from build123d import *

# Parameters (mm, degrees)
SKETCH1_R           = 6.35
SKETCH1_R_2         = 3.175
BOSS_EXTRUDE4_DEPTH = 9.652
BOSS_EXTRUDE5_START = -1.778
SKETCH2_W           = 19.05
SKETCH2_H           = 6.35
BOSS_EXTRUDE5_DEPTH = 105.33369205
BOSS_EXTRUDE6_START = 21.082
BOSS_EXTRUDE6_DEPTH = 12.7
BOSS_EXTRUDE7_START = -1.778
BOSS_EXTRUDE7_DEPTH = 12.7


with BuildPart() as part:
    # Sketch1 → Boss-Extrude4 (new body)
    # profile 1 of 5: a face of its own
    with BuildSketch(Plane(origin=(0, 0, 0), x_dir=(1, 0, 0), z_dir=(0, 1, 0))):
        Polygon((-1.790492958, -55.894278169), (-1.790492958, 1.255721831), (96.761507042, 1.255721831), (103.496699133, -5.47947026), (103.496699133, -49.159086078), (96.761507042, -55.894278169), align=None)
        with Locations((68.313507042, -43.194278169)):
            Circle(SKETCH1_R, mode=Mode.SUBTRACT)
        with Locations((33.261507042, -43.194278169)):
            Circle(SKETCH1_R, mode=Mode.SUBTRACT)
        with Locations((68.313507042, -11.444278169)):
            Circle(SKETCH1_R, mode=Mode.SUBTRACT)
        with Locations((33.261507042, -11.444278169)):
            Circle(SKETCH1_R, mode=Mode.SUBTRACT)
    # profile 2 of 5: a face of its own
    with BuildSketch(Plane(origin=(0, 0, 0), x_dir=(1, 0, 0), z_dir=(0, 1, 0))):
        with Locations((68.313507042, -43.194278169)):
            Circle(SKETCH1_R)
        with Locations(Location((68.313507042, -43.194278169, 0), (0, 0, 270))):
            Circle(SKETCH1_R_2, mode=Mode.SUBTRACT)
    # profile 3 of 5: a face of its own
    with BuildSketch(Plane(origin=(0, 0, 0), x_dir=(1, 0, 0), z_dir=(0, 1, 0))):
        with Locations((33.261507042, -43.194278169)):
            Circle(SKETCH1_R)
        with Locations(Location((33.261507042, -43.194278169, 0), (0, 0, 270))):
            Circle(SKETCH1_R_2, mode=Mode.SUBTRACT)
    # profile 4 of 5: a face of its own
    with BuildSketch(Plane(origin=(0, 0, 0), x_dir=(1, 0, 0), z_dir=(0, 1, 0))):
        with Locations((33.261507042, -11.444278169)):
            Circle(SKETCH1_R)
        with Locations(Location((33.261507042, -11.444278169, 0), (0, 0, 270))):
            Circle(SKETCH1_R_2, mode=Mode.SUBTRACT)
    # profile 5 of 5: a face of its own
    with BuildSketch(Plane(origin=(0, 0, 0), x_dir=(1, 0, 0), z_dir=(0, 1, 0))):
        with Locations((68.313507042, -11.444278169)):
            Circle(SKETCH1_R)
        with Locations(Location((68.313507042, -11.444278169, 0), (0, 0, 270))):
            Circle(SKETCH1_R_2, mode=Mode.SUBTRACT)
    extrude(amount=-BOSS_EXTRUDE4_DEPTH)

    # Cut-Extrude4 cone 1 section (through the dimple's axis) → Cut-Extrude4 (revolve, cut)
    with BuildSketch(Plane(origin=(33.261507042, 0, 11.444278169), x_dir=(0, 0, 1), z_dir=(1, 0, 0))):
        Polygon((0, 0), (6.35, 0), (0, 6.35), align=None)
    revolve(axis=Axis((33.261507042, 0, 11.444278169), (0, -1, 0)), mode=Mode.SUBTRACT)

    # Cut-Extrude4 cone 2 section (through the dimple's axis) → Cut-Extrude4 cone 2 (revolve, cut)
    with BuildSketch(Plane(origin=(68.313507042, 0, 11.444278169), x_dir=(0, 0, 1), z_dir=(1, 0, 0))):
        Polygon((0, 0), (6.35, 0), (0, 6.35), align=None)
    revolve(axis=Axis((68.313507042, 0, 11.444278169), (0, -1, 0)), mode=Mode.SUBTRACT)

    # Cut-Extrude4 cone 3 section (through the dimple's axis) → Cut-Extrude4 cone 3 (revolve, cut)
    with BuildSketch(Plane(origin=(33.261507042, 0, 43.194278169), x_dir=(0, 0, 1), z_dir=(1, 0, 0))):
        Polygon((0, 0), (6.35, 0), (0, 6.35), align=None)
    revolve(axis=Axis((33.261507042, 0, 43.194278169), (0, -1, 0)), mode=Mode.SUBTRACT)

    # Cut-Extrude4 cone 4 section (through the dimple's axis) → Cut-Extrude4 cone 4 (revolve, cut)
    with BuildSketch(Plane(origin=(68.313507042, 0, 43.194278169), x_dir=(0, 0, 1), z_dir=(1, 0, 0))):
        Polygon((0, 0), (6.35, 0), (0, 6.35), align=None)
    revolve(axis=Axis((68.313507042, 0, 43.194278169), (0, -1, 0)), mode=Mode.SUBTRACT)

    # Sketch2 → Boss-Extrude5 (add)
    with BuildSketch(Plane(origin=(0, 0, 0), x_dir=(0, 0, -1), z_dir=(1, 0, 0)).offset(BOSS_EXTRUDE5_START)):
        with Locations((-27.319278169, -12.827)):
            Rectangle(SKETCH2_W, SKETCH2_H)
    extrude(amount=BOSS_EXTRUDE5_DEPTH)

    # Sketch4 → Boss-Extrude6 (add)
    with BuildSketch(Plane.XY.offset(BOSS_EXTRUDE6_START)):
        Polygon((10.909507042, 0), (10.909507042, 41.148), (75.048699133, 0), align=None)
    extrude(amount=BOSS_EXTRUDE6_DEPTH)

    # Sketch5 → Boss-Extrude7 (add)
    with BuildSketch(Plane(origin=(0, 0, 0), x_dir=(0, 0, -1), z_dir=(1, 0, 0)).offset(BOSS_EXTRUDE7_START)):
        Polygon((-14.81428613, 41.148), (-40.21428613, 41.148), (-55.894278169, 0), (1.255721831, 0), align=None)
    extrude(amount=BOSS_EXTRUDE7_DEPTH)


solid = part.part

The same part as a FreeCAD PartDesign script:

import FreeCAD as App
import Part
import Sketcher

V = App.Vector
Q = App.Units.Quantity


def add_polygon(sketch, points):
    """Adds a closed chain of lines whose ends are joined by coincident constraints."""
    first, n = sketch.GeometryCount, len(points)
    for a, b in zip(points, points[1:] + points[:1]):
        sketch.addGeometry(Part.LineSegment(App.Vector(*a, 0), App.Vector(*b, 0)), False)
    for i in range(n):
        sketch.addConstraint(Sketcher.Constraint("Coincident", first + i, 2, first + (i + 1) % n, 1))

doc = App.newDocument("Part")
body = doc.addObject("PartDesign::Body", "Body")

# Sketch on XZ plane
sketch1 = doc.addObject("Sketcher::SketchObject", "Sketch")
body.addObject(sketch1)
sketch1.AttachmentSupport = (doc.XZ_Plane, [""])
sketch1.MapMode = "FlatFace"
add_polygon(sketch1, [(-1.8, -1.3), (-1.8, 55.9), (96.8, 55.9), (103.5, 49.2), (103.5, 5.5), (96.8, -1.3)])  # lines 0-5
sketch1.addGeometry(Part.Circle(V(68.3, 43.2, 0), V(0, 0, 1), 3.2), False)  # 6
sketch1.addGeometry(Part.Circle(V(33.3, 43.2, 0), V(0, 0, 1), 3.2), False)  # 7
sketch1.addGeometry(Part.Circle(V(68.3, 11.4, 0), V(0, 0, 1), 3.2), False)  # 8
sketch1.addGeometry(Part.Circle(V(33.3, 11.4, 0), V(0, 0, 1), 3.2), False)  # 9
sketch1.addConstraint(Sketcher.Constraint("Vertical", 0))
sketch1.addConstraint(Sketcher.Constraint("Horizontal", 1))
sketch1.addConstraint(Sketcher.Constraint("Vertical", 3))
sketch1.addConstraint(Sketcher.Constraint("Horizontal", 5))
sketch1.addConstraint(Sketcher.Constraint("Equal", 6, 7))
sketch1.addConstraint(Sketcher.Constraint("Equal", 7, 8))
sketch1.addConstraint(Sketcher.Constraint("Equal", 8, 9))
sketch1.addConstraint(Sketcher.Constraint("Perpendicular", 2, 4))
sketch1.addConstraint(Sketcher.Constraint("Horizontal", 6, 3, 7, 3))
sketch1.addConstraint(Sketcher.Constraint("Horizontal", 8, 3, 9, 3))
sketch1.addConstraint(Sketcher.Constraint("Vertical", 6, 3, 8, 3))
sketch1.addConstraint(Sketcher.Constraint("Vertical", 7, 3, 9, 3))
sketch1.addConstraint(Sketcher.Constraint("Vertical", 1, 2, 4, 2))
sketch1.addConstraint(Sketcher.Constraint("Equal", 2, 4))
sketch1.addConstraint(Sketcher.Constraint("Diameter", 6, Q("0.25 in")))
sketch1.addConstraint(Sketcher.Constraint("DistanceX", 1, 1, 1, 2, Q("3.88 in")))
sketch1.addConstraint(Sketcher.Constraint("DistanceY", 0, 1, 0, 2, Q("2.25 in")))
sketch1.addConstraint(Sketcher.Constraint("DistanceY", 7, 3, 0, 2, Q("0.5 in")))
sketch1.addConstraint(Sketcher.Constraint("DistanceX", 7, 3, 1, 2, Q("2.5 in")))
sketch1.addConstraint(Sketcher.Constraint("DistanceY", 4, 2, 8, 3, Q("0.5 in")))
sketch1.addConstraint(Sketcher.Constraint("DistanceX", 7, 3, 6, 3, Q("1.38 in")))
sketch1.addConstraint(Sketcher.Constraint("Distance", 2, Q("0.375 in")))
sketch1.addConstraint(Sketcher.Constraint("DistanceX", -1, 1, 2, 2, Q("103.496699 mm")))
sketch1.addConstraint(Sketcher.Constraint("DistanceY", -1, 1, 6, 3, Q("43.194278 mm")))
pad1 = doc.addObject("PartDesign::Pad", "Pad")
body.addObject(pad1)
pad1.Profile = sketch1
pad1.Length = Q("0.38 in")

# Sketch on YZ plane
sketch2 = doc.addObject("Sketcher::SketchObject", "Sketch001")
body.addObject(sketch2)
sketch2.AttachmentSupport = (doc.YZ_Plane, [""])
sketch2.MapMode = "FlatFace"
sketch2.AttachmentOffset = App.Placement(V(0, 0, 33.261507), App.Rotation())
add_polygon(sketch2, [(0, 11), (0, 18), (-6, 11)])  # lines 0-2
sketch2.addGeometry(Part.LineSegment(V(0, 11, 0), V(-6, 11, 0)), True)  # axis
sketch2.addConstraint(Sketcher.Constraint("Vertical", 0))
sketch2.addConstraint(Sketcher.Constraint("Horizontal", 2))
sketch2.addConstraint(Sketcher.Constraint("Horizontal", 3))
sketch2.addConstraint(Sketcher.Constraint("Coincident", 3, 1, 2, 2))
sketch2.addConstraint(Sketcher.Constraint("PointOnObject", 0, 2, -2))
sketch2.addConstraint(Sketcher.Constraint("Equal", 2, 3))
sketch2.addConstraint(Sketcher.Constraint("Equal", 3, 0))
sketch2.addConstraint(Sketcher.Constraint("DistanceX", 2, 1, 2, 2, Q("0.25 in")))
sketch2.addConstraint(Sketcher.Constraint("DistanceY", -1, 1, 0, 2, Q("17.794278 mm")))
groove = doc.addObject("PartDesign::Groove", "Groove")
body.addObject(groove)
groove.Profile = sketch2
groove.ReferenceAxis = (sketch2, ["Axis0"])
groove.Angle = 360

# Sketch on YZ plane
sketch3 = doc.addObject("Sketcher::SketchObject", "Sketch002")
body.addObject(sketch3)
sketch3.AttachmentSupport = (doc.YZ_Plane, [""])
sketch3.MapMode = "FlatFace"
sketch3.AttachmentOffset = App.Placement(V(0, 0, 68.313507), App.Rotation())
add_polygon(sketch3, [(0, 11), (0, 18), (-6, 11)])  # lines 0-2
sketch3.addGeometry(Part.LineSegment(V(0, 11, 0), V(-6, 11, 0)), True)  # axis
sketch3.addConstraint(Sketcher.Constraint("Vertical", 0))
sketch3.addConstraint(Sketcher.Constraint("Horizontal", 2))
sketch3.addConstraint(Sketcher.Constraint("Horizontal", 3))
sketch3.addConstraint(Sketcher.Constraint("Coincident", 3, 1, 2, 2))
sketch3.addConstraint(Sketcher.Constraint("PointOnObject", 0, 2, -2))
sketch3.addConstraint(Sketcher.Constraint("Equal", 2, 3))
sketch3.addConstraint(Sketcher.Constraint("Equal", 3, 0))
sketch3.addConstraint(Sketcher.Constraint("DistanceX", 2, 1, 2, 2, Q("0.25 in")))
sketch3.addConstraint(Sketcher.Constraint("DistanceY", -1, 1, 0, 2, Q("17.794278 mm")))
groove2 = doc.addObject("PartDesign::Groove", "Groove001")
body.addObject(groove2)
groove2.Profile = sketch3
groove2.ReferenceAxis = (sketch3, ["Axis0"])
groove2.Angle = 360

# Sketch on YZ plane
sketch4 = doc.addObject("Sketcher::SketchObject", "Sketch003")
body.addObject(sketch4)
sketch4.AttachmentSupport = (doc.YZ_Plane, [""])
sketch4.MapMode = "FlatFace"
sketch4.AttachmentOffset = App.Placement(V(0, 0, 33.261507), App.Rotation())
add_polygon(sketch4, [(0, 43), (0, 50), (-6, 43)])  # lines 0-2
sketch4.addGeometry(Part.LineSegment(V(0, 43, 0), V(-6, 43, 0)), True)  # axis
sketch4.addConstraint(Sketcher.Constraint("Vertical", 0))
sketch4.addConstraint(Sketcher.Constraint("Horizontal", 2))
sketch4.addConstraint(Sketcher.Constraint("Horizontal", 3))
sketch4.addConstraint(Sketcher.Constraint("Coincident", 3, 1, 2, 2))
sketch4.addConstraint(Sketcher.Constraint("PointOnObject", 0, 2, -2))
sketch4.addConstraint(Sketcher.Constraint("Equal", 2, 3))
sketch4.addConstraint(Sketcher.Constraint("Equal", 3, 0))
sketch4.addConstraint(Sketcher.Constraint("DistanceX", 2, 1, 2, 2, Q("0.25 in")))
sketch4.addConstraint(Sketcher.Constraint("DistanceY", -1, 1, 0, 2, Q("49.544278 mm")))
groove3 = doc.addObject("PartDesign::Groove", "Groove002")
body.addObject(groove3)
groove3.Profile = sketch4
groove3.ReferenceAxis = (sketch4, ["Axis0"])
groove3.Angle = 360

# Sketch on YZ plane
sketch5 = doc.addObject("Sketcher::SketchObject", "Sketch004")
body.addObject(sketch5)
sketch5.AttachmentSupport = (doc.YZ_Plane, [""])
sketch5.MapMode = "FlatFace"
sketch5.AttachmentOffset = App.Placement(V(0, 0, 68.313507), App.Rotation())
add_polygon(sketch5, [(0, 43), (0, 50), (-6, 43)])  # lines 0-2
sketch5.addGeometry(Part.LineSegment(V(0, 43, 0), V(-6, 43, 0)), True)  # axis
sketch5.addConstraint(Sketcher.Constraint("Vertical", 0))
sketch5.addConstraint(Sketcher.Constraint("Horizontal", 2))
sketch5.addConstraint(Sketcher.Constraint("Horizontal", 3))
sketch5.addConstraint(Sketcher.Constraint("Coincident", 3, 1, 2, 2))
sketch5.addConstraint(Sketcher.Constraint("PointOnObject", 0, 2, -2))
sketch5.addConstraint(Sketcher.Constraint("Equal", 2, 3))
sketch5.addConstraint(Sketcher.Constraint("Equal", 3, 0))
sketch5.addConstraint(Sketcher.Constraint("DistanceX", 2, 1, 2, 2, Q("0.25 in")))
sketch5.addConstraint(Sketcher.Constraint("DistanceY", -1, 1, 0, 2, Q("49.544278 mm")))
groove4 = doc.addObject("PartDesign::Groove", "Groove003")
body.addObject(groove4)
groove4.Profile = sketch5
groove4.ReferenceAxis = (sketch5, ["Axis0"])
groove4.Angle = 360

# Sketch on YZ plane
sketch6 = doc.addObject("Sketcher::SketchObject", "Sketch005")
body.addObject(sketch6)
sketch6.AttachmentSupport = (doc.YZ_Plane, [""])
sketch6.MapMode = "FlatFace"
sketch6.AttachmentOffset = App.Placement(V(0, 0, -0.07 * 25.4), App.Rotation())
add_polygon(sketch6, [(-10, 37), (-16, 37), (-16, 18), (-10, 18)])  # lines 0-3
sketch6.addConstraint(Sketcher.Constraint("Horizontal", 0))
sketch6.addConstraint(Sketcher.Constraint("Vertical", 1))
sketch6.addConstraint(Sketcher.Constraint("Horizontal", 2))
sketch6.addConstraint(Sketcher.Constraint("Vertical", 3))
sketch6.addConstraint(Sketcher.Constraint("DistanceX", 0, 2, 0, 1, Q("0.25 in")))
sketch6.addConstraint(Sketcher.Constraint("DistanceY", 1, 2, 1, 1, Q("0.75 in")))
sketch6.addConstraint(Sketcher.Constraint("DistanceX", 0, 2, -1, 1, Q("0.63 in")))
sketch6.addConstraint(Sketcher.Constraint("DistanceY", -1, 1, 0, 2, Q("36.844278 mm")))
pad2 = doc.addObject("PartDesign::Pad", "Pad001")
body.addObject(pad2)
pad2.Profile = sketch6
pad2.Length = 105.333692

# Sketch on XY plane
sketch7 = doc.addObject("Sketcher::SketchObject", "Sketch006")
body.addObject(sketch7)
sketch7.AttachmentSupport = (doc.XY_Plane, [""])
sketch7.MapMode = "FlatFace"
sketch7.AttachmentOffset = App.Placement(V(0, 0, 0.83 * 25.4), App.Rotation())
add_polygon(sketch7, [(11, 41), (11, 0), (75, 0)])  # lines 0-2
sketch7.addConstraint(Sketcher.Constraint("Vertical", 0))
sketch7.addConstraint(Sketcher.Constraint("Horizontal", 1))
sketch7.addConstraint(Sketcher.Constraint("PointOnObject", 0, 2, -1))
sketch7.addConstraint(Sketcher.Constraint("DistanceY", 0, 2, 0, 1, Q("1.62 in")))
sketch7.addConstraint(Sketcher.Constraint("DistanceX", -1, 1, 1, 2, Q("75.048699 mm")))
sketch7.addConstraint(Sketcher.Constraint("DistanceX", 1, 1, 1, 2, Q("64.139192 mm")))
pad3 = doc.addObject("PartDesign::Pad", "Pad002")
body.addObject(pad3)
pad3.Profile = sketch7
pad3.Length = Q("0.5 in")

# Sketch on YZ plane
sketch8 = doc.addObject("Sketcher::SketchObject", "Sketch007")
body.addObject(sketch8)
sketch8.AttachmentSupport = (doc.YZ_Plane, [""])
sketch8.MapMode = "FlatFace"
sketch8.AttachmentOffset = App.Placement(V(0, 0, -0.07 * 25.4), App.Rotation())
add_polygon(sketch8, [(41, 15), (41, 40), (0, 56), (0, -1)])  # lines 0-3
sketch8.addConstraint(Sketcher.Constraint("Vertical", 0))
sketch8.addConstraint(Sketcher.Constraint("Vertical", 2))
sketch8.addConstraint(Sketcher.Constraint("PointOnObject", 1, 2, -2))
sketch8.addConstraint(Sketcher.Constraint("DistanceY", 0, 1, 0, 2, Q("1 in")))
sketch8.addConstraint(Sketcher.Constraint("DistanceY", 2, 2, 2, 1, Q("2.25 in")))
sketch8.addConstraint(Sketcher.Constraint("DistanceX", -1, 1, 0, 2, Q("1.62 in")))
sketch8.addConstraint(Sketcher.Constraint("Angle", 1, Q("159.139993 deg")))
sketch8.addConstraint(Sketcher.Constraint("DistanceY", -1, 1, 1, 2, Q("55.894278 mm")))
pad4 = doc.addObject("PartDesign::Pad", "Pad003")
body.addObject(pad4)
pad4.Profile = sketch8
pad4.Length = Q("0.5 in")

doc.recompute()
